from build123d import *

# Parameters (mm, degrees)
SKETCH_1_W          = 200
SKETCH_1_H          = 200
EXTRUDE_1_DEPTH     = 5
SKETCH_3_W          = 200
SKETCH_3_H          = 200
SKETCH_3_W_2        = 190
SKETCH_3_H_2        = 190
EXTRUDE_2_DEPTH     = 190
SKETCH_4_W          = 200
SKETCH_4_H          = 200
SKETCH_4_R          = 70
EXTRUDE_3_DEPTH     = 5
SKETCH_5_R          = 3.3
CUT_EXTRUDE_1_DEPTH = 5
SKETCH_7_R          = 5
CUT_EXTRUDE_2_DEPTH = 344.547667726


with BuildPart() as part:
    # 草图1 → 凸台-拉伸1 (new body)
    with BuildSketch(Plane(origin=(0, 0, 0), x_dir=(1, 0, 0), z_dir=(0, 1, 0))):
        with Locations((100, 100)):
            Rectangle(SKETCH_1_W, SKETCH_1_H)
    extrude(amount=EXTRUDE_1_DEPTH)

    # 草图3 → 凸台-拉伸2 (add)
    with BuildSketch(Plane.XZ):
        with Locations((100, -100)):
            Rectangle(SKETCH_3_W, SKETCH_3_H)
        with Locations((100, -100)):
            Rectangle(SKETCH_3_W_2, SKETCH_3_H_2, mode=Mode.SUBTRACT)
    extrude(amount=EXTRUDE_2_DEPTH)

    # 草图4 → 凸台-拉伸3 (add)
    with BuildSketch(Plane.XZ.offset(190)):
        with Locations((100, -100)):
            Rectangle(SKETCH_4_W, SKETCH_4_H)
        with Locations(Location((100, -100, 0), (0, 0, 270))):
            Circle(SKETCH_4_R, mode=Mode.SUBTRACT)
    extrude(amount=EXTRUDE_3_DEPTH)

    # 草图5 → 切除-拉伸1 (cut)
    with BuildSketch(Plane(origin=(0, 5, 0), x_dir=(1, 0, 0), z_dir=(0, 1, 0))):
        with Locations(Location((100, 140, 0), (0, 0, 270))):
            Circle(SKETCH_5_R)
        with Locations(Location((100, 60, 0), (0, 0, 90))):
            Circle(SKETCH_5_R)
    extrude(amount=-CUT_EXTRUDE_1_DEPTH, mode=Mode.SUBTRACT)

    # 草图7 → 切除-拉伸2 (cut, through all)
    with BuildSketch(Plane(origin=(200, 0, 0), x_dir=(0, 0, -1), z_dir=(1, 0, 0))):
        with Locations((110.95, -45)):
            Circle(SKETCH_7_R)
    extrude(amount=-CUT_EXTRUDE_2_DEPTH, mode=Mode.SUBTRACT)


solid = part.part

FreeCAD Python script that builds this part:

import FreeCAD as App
import Part
import Sketcher
Q = App.Units.Quantity


def add_polygon(sketch, points):
    """Adds a closed chain of lines whose ends are joined by coincident constraints."""
    first, n = sketch.GeometryCount, len(points)
    for a, b in zip(points, points[1:] + points[:1]):
        sketch.addGeometry(Part.LineSegment(App.Vector(*a, 0), App.Vector(*b, 0)), False)
    for i in range(n):
        sketch.addConstraint(Sketcher.Constraint("Coincident", first + i, 2, first + (i + 1) % n, 1))

doc = App.newDocument("Part")
params = doc.addObject("Spreadsheet::Sheet", "Params")
for row, (alias, value) in enumerate([
    ("sketch1_width", "200 mm"),
    ("pad1_length", "5 mm"),
    ("sketch2_width", "200 mm"),
    ("sketch2_width2", "190 mm"),
    ("pad2_length", "190 mm"),
    ("sketch3_diameter", "140 mm"),
    ("sketch3_width", "200 mm"),
    ("pad3_length", "5 mm"),
    ("sketch4_diameter", "6.6 mm"),
    ("pocket1_length", "5 mm"),
    ("sketch5_diameter", "10 mm"),
], start=1):
    params.set(f"A{row}", alias)
    params.set(f"B{row}", "=" + value)
    params.setAlias(f"B{row}", alias)

body = doc.addObject("PartDesign::Body", "Body")

# Sketch on XZ plane
sketch1 = doc.addObject("Sketcher::SketchObject", "Sketch")
body.addObject(sketch1)
sketch1.AttachmentSupport = (doc.XZ_Plane, [""])
sketch1.MapMode = "FlatFace"
add_polygon(sketch1, [(0, -200), (0, 0), (200, 0), (200, -200)])  # lines 0-3
sketch1.addConstraint([
    Sketcher.Constraint("Vertical", 0),
    Sketcher.Constraint("Horizontal", 1),
    Sketcher.Constraint("Vertical", 2),
    Sketcher.Constraint("Horizontal", 3),
    Sketcher.Constraint("Coincident", 0, 2, -1, 1),
    Sketcher.Constraint("Equal", 3, 0),
    Sketcher.Constraint("DistanceX", 1, 1, 1, 2, Q("200 mm")),
])
sketch1.setExpression("Constraints[10]", "Params.sketch1_width")
pad1 = doc.addObject("PartDesign::Pad", "Pad")
body.addObject(pad1)
pad1.Profile = sketch1
pad1.setExpression("Length", "Params.pad1_length")
pad1.Reversed = True

# Sketch on XZ plane
sketch2 = doc.addObject("Sketcher::SketchObject", "Sketch001")
body.addObject(sketch2)
sketch2.AttachmentSupport = (doc.XZ_Plane, [""])
sketch2.MapMode = "FlatFace"
add_polygon(sketch2, [(0, 0), (0, -200), (200, -200), (200, 0)])  # lines 0-3
add_polygon(sketch2, [(195, -195), (5, -195), (5, -5), (195, -5)])  # lines 4-7
sketch2.addConstraint([
    Sketcher.Constraint("Vertical", 0),
    Sketcher.Constraint("Horizontal", 1),
    Sketcher.Constraint("Vertical", 2),
    Sketcher.Constraint("Horizontal", 3),
    Sketcher.Constraint("Horizontal", 4),
    Sketcher.Constraint("Vertical", 5),
    Sketcher.Constraint("Horizontal", 6),
    Sketcher.Constraint("Vertical", 7),
    Sketcher.Constraint("Coincident", 3, 2, -1, 1),
    Sketcher.Constraint("Equal", 3, 0),
    Sketcher.Constraint("Equal", 6, 5),
    Sketcher.Constraint("DistanceX", 1, 1, 1, 2, Q("200 mm")),
    Sketcher.Constraint("DistanceX", 4, 2, 4, 1, Q("190 mm")),
    Sketcher.Constraint("DistanceX", -1, 1, 4, 2, Q("5 mm")),
    Sketcher.Constraint("DistanceY", 4, 2, -1, 1, Q("195 mm")),
])
sketch2.setExpression("Constraints[19]", "Params.sketch2_width")
sketch2.setExpression("Constraints[20]", "Params.sketch2_width2")
pad2 = doc.addObject("PartDesign::Pad", "Pad001")
body.addObject(pad2)
pad2.Profile = sketch2
pad2.setExpression("Length", "Params.pad2_length")

# Sketch on XZ plane
sketch3 = doc.addObject("Sketcher::SketchObject", "Sketch002")
body.addObject(sketch3)
sketch3.AttachmentSupport = (doc.XZ_Plane, [""])
sketch3.MapMode = "FlatFace"
sketch3.AttachmentOffset = App.Placement(App.Vector(0, 0, 190), App.Rotation())
add_polygon(sketch3, [(0, 0), (0, -200), (200, -200), (200, 0)])  # lines 0-3
sketch3.addGeometry(Part.Circle(App.Vector(100, -100, 0), App.Vector(0, 0, 1), 70), False)  # 4
sketch3.addConstraint([
    Sketcher.Constraint("Vertical", 0),
    Sketcher.Constraint("Horizontal", 1),
    Sketcher.Constraint("Vertical", 2),
    Sketcher.Constraint("Horizontal", 3),
    Sketcher.Constraint("Coincident", 3, 2, -1, 1),
    Sketcher.Constraint("Equal", 3, 0),
    Sketcher.Constraint("Diameter", 4, Q("140 mm")),
    Sketcher.Constraint("DistanceX", 1, 1, 1, 2, Q("200 mm")),
    Sketcher.Constraint("DistanceX", -1, 1, 4, 3, Q("100 mm")),
    Sketcher.Constraint("DistanceY", 4, 3, -1, 1, Q("100 mm")),
])
sketch3.setExpression("Constraints[10]", "Params.sketch3_diameter")
sketch3.setExpression("Constraints[11]", "Params.sketch3_width")
pad3 = doc.addObject("PartDesign::Pad", "Pad002")
body.addObject(pad3)
pad3.Profile = sketch3
pad3.setExpression("Length", "Params.pad3_length")

# Sketch on XZ plane
sketch4 = doc.addObject("Sketcher::SketchObject", "Sketch003")
body.addObject(sketch4)
sketch4.AttachmentSupport = (doc.XZ_Plane, [""])
sketch4.MapMode = "FlatFace"
sketch4.AttachmentOffset = App.Placement(App.Vector(0, 0, -5), App.Rotation())
sketch4.addGeometry([
    Part.Circle(App.Vector(100, -140, 0), App.Vector(0, 0, 1), 3.3),
    Part.Circle(App.Vector(100, -60, 0), App.Vector(0, 0, 1), 3.3),
], False)
sketch4.addConstraint([
    Sketcher.Constraint("Equal", 0, 1),
    Sketcher.Constraint("Vertical", 0, 3, 1, 3),
    Sketcher.Constraint("Diameter", 0, Q("6.6 mm")),
    Sketcher.Constraint("DistanceX", -1, 1, 0, 3, Q("100 mm")),
    Sketcher.Constraint("DistanceY", 0, 3, -1, 1, Q("140 mm")),
    Sketcher.Constraint("DistanceY", 1, 3, -1, 1, Q("60 mm")),
])
sketch4.setExpression("Constraints[2]", "Params.sketch4_diameter")
pocket1 = doc.addObject("PartDesign::Pocket", "Pocket")
body.addObject(pocket1)
pocket1.Profile = sketch4
pocket1.setExpression("Length", "Params.pocket1_length")
pocket1.Reversed = True

# Sketch on YZ plane
sketch5 = doc.addObject("Sketcher::SketchObject", "Sketch004")
body.addObject(sketch5)
sketch5.AttachmentSupport = (doc.YZ_Plane, [""])
sketch5.MapMode = "FlatFace"
sketch5.AttachmentOffset = App.Placement(App.Vector(0, 0, 200), App.Rotation())
sketch5.addGeometry(Part.Circle(App.Vector(-45, -111, 0), App.Vector(0, 0, 1), 5), False)
sketch5.addConstraint([
    Sketcher.Constraint("Diameter", 0, Q("10 mm")),
    Sketcher.Constraint("DistanceX", 0, 3, -1, 1, Q("45 mm")),
    Sketcher.Constraint("DistanceY", 0, 3, -1, 1, Q("110.95 mm")),
])
sketch5.setExpression("Constraints[0]", "Params.sketch5_diameter")
pocket2 = doc.addObject("PartDesign::Pocket", "Pocket001")
body.addObject(pocket2)
pocket2.Profile = sketch5
pocket2.Type = "ThroughAll"

doc.recompute()
